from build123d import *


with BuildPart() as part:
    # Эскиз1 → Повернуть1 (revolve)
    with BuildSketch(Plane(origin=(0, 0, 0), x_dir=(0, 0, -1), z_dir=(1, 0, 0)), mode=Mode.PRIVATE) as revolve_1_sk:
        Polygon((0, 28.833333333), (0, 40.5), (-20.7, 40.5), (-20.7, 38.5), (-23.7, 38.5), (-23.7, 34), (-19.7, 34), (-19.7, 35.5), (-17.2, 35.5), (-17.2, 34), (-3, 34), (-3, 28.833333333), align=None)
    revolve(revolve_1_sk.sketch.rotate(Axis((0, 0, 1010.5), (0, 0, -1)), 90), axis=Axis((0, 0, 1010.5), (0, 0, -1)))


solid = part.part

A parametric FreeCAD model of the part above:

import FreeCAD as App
import Part
import Sketcher
from FreeCAD import Vector


def add_polygon(sketch, points):
    """Adds a closed chain of lines whose ends are joined by coincident constraints."""
    first, n = sketch.GeometryCount, len(points)
    for a, b in zip(points, points[1:] + points[:1]):
        sketch.addGeometry(Part.LineSegment(App.Vector(*a, 0), App.Vector(*b, 0)), False)
    for i in range(n):
        sketch.addConstraint(Sketcher.Constraint("Coincident", first + i, 2, first + (i + 1) % n, 1))

doc = App.newDocument("Part")
body = doc.addObject("PartDesign::Body", "Body")

# Sketch on YZ plane
sketch1 = body.newObject("Sketcher::SketchObject", "Sketch")
sketch1.AttachmentSupport = (doc.getObject("YZ_Plane"), [""])
sketch1.MapMode = "FlatFace"
add_polygon(sketch1, [(28.8, 0), (40.5, 0), (40.5, 20.7), (38.5, 20.7), (38.5, 23.7), (34, 23.7), (34, 19.7), (35.5, 19.7), (35.5, 17.2), (34, 17.2), (34, 3), (28.8, 3)])  # lines 0-11
sketch1.addConstraint([
    Sketcher.Constraint("Horizontal", 0),
    Sketcher.Constraint("Vertical", 1),
    Sketcher.Constraint("Horizontal", 2),
    Sketcher.Constraint("Vertical", 3),
    Sketcher.Constraint("Horizontal", 4),
    Sketcher.Constraint("Vertical", 5),
    Sketcher.Constraint("Horizontal", 6),
    Sketcher.Constraint("Vertical", 7),
    Sketcher.Constraint("Horizontal", 8),
    Sketcher.Constraint("Vertical", 9),
    Sketcher.Constraint("Horizontal", 10),
    Sketcher.Constraint("Vertical", 11),
    Sketcher.Constraint("PointOnObject", 0, 2, -1),
    Sketcher.Constraint("Vertical", 5, 2, 8, 2),
    Sketcher.Constraint("Equal", 3, 11),
    Sketcher.Constraint("DistanceX", 2, 2, 2, 1, 2.0),
    Sketcher.Constraint("DistanceY", 3, 1, 3, 2, 3.0),
    Sketcher.Constraint("DistanceY", 5, 2, 5, 1, 4.0),
    Sketcher.Constraint("DistanceX", 4, 2, 4, 1, 4.5),
    Sketcher.Constraint("DistanceX", 6, 1, 6, 2, 1.5),
    Sketcher.Constraint("DistanceY", 1, 1, 1, 2, 20.7),
    Sketcher.Constraint("DistanceY", 7, 2, 7, 1, 2.5),
    Sketcher.Constraint("DistanceX", -1, 1, 4, 2, 34.0),
    Sketcher.Constraint("DistanceX", 0, 1, 0, 2, 11.666667),
])
revolution = body.newObject("PartDesign::Revolution", "Revolution")
revolution.Profile = sketch1
revolution.ReferenceAxis = (sketch1, ["V_Axis"])
revolution.Angle = 360

doc.recompute()
